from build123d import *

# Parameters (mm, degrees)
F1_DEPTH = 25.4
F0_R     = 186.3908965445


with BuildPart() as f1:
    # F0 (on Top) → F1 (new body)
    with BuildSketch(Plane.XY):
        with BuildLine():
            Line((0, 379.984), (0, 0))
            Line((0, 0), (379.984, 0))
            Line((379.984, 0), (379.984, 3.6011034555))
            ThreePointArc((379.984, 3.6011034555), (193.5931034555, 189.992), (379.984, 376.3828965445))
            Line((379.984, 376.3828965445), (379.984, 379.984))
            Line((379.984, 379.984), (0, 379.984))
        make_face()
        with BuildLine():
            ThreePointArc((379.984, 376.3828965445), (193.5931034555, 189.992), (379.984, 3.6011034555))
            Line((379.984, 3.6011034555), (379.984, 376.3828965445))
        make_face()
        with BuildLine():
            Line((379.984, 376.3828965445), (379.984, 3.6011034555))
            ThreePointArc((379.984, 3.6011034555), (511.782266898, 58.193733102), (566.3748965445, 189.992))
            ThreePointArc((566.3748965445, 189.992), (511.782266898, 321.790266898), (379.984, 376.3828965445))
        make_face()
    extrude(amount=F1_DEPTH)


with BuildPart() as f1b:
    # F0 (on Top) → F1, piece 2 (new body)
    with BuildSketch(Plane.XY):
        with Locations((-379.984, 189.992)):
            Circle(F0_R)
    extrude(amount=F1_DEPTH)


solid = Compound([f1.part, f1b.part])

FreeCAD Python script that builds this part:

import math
import FreeCAD as App
import Part
import Sketcher

V = App.Vector
Q = App.Units.Quantity

doc = App.newDocument("Part")
body = doc.addObject("PartDesign::Body", "Body")

sketch1 = body.newObject("Sketcher::SketchObject", "Sketch")
sketch1.AttachmentSupport = (doc.getObject("XY_Plane"), [""])
sketch1.MapMode = "FlatFace"
sketch1.addGeometry([
    Part.LineSegment(V(0, 380, 0), V(0, 0, 0)),
    Part.LineSegment(V(0, 0, 0), V(380, 0, 0)),
    Part.LineSegment(V(380, 0, 0), V(380, 3.6, 0)),
    Part.ArcOfCircle(Part.Circle(V(380, 190, 0), V(0, 0, 1), 186.4), math.radians(-90), math.radians(0)),
    Part.ArcOfCircle(Part.Circle(V(380, 190, 0), V(0, 0, 1), 186.4), math.radians(0), math.radians(90)),
    Part.LineSegment(V(380, 376.4, 0), V(380, 380, 0)),
    Part.LineSegment(V(380, 380, 0), V(0, 380, 0)),
], False)
sketch1.addConstraint([
    Sketcher.Constraint("Coincident", 0, 2, 1, 1),
    Sketcher.Constraint("Coincident", 1, 2, 2, 1),
    Sketcher.Constraint("Coincident", 2, 2, 3, 1),
    Sketcher.Constraint("Tangent", 3, 2, 4, 1),
    Sketcher.Constraint("Coincident", 4, 2, 5, 1),
    Sketcher.Constraint("Coincident", 5, 2, 6, 1),
    Sketcher.Constraint("Coincident", 6, 2, 0, 1),
    Sketcher.Constraint("Vertical", 0),
    Sketcher.Constraint("Horizontal", 1),
    Sketcher.Constraint("Vertical", 2),
    Sketcher.Constraint("Vertical", 5),
    Sketcher.Constraint("Horizontal", 6),
    Sketcher.Constraint("Coincident", 0, 2, -1, 1),
    Sketcher.Constraint("Equal", 3, 4),
    Sketcher.Constraint("Horizontal", 4, 3, 3, 2),
    Sketcher.Constraint("Vertical", 4, 3, 1, 2),
    Sketcher.Constraint("Vertical", 2, 2, 4, 2),
    Sketcher.Constraint("Equal", 6, 0),
    Sketcher.Constraint("Equal", 2, 5),
    Sketcher.Constraint("DistanceX", 1, 1, 1, 2, Q("14.96 in")),
    Sketcher.Constraint("Radius", 3, 186.390897),
])
pad1 = body.newObject("PartDesign::Pad", "Pad")
pad1.Profile = sketch1
pad1.Length = Q("1 in")
body2 = doc.addObject("PartDesign::Body", "Body001")

sketch2 = body2.newObject("Sketcher::SketchObject", "Sketch001")
sketch2.AttachmentSupport = (doc.getObject("XY_Plane001"), [""])
sketch2.MapMode = "FlatFace"
sketch2.addGeometry(Part.Circle(V(-380, 190, 0), V(0, 0, 1), 186), False)
sketch2.addConstraint([
    Sketcher.Constraint("DistanceX", 0, 3, -1, 1, Q("14.96 in")),
    Sketcher.Constraint("DistanceY", -1, 1, 0, 3, Q("7.48 in")),
    Sketcher.Constraint("Diameter", 0, 372.781793),
])
pad2 = body2.newObject("PartDesign::Pad", "Pad001")
pad2.Profile = sketch2
pad2.Length = Q("1 in")

doc.recompute()
